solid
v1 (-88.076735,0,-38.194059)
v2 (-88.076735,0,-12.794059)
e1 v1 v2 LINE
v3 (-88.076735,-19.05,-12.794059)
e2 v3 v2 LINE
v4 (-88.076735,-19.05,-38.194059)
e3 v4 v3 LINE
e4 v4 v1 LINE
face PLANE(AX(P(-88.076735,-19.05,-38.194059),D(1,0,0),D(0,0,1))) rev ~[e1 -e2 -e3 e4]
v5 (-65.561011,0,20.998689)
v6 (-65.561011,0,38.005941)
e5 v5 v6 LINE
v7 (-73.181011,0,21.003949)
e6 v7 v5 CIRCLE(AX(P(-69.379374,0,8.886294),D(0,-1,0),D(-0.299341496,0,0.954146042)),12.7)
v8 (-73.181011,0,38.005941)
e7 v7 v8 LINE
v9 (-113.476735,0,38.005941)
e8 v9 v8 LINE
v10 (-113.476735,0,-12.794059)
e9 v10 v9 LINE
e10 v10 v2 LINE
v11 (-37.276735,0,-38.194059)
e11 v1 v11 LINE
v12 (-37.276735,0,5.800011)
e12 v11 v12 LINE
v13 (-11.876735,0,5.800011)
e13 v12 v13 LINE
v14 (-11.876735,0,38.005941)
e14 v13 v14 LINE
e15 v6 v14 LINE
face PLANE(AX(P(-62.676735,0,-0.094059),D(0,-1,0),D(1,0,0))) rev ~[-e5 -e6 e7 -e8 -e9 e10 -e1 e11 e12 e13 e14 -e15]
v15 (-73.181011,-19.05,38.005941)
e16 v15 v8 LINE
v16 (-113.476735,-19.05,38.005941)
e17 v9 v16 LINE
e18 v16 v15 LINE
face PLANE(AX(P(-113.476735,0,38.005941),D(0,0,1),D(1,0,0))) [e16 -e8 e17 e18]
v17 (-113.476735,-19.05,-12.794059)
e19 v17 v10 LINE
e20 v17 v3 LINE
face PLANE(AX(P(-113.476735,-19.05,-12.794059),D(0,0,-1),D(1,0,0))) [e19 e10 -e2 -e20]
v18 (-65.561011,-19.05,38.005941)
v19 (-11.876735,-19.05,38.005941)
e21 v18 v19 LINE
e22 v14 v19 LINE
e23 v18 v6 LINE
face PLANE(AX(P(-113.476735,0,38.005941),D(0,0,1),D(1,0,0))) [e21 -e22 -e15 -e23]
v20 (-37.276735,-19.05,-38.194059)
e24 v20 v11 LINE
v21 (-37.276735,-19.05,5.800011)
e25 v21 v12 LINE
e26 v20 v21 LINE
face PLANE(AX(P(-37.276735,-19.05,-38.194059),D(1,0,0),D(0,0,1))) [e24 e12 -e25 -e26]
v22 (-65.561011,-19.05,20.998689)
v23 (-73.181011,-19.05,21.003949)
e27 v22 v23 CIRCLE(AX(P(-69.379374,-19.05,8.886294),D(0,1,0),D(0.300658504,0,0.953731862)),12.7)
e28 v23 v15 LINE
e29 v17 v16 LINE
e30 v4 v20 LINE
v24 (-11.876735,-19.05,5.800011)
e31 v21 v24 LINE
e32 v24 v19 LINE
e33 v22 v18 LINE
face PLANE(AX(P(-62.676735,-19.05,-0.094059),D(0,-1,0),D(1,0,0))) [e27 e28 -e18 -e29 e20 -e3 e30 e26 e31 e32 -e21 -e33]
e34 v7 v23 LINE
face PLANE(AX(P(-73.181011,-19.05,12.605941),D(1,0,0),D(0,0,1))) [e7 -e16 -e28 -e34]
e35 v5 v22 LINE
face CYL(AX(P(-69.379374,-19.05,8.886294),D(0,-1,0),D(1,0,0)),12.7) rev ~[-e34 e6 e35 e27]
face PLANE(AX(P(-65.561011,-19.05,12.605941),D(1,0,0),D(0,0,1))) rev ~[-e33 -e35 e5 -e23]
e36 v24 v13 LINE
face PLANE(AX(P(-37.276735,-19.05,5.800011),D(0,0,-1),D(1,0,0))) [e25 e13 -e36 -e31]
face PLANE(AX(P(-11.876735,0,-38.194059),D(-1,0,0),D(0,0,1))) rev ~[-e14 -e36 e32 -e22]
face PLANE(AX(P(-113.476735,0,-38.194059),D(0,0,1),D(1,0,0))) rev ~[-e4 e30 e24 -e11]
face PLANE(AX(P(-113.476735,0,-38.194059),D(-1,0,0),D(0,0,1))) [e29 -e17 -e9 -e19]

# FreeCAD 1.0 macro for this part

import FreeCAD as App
import Part
import Sketcher

V = App.Vector
Q = App.Units.Quantity

doc = App.newDocument("Part")
params = doc.addObject("Spreadsheet::Sheet", "Params")
for row, (alias, value) in enumerate([
    ("sketch1_width", "4 in"),
    ("sketch1_height", "3 in"),
    ("pad1_length", "0.75 in"),
    ("sketch2_width", "1 in"),
    ("pocket1_length", "0.75 in"),
    ("sketch3_width", "1 in"),
    ("pocket2_length", "0.75 in"),
    ("sketch4_diameter", "1 in"),
    ("pocket3_length", "0.75 in"),
    ("sketch5_height", "1 in"),
    ("sketch5_width", "0.3 in"),
], start=1):
    params.set(f"A{row}", alias)
    params.set(f"B{row}", "=" + value)
    params.setAlias(f"B{row}", alias)

body = doc.addObject("PartDesign::Body", "Body")

# Sketch on XZ plane
sketch1 = body.newObject("Sketcher::SketchObject", "Sketch")
sketch1.AttachmentSupport = (doc.getObject("XZ_Plane"), [""])
sketch1.MapMode = "FlatFace"
sketch1.addGeometry(Part.LineSegment(V(-113.476735, 38.005941, 0), V(-113.476735, -38.194059, 0)), False)
sketch1.addGeometry(Part.LineSegment(V(-113.476735, -38.194059, 0), V(-11.876735, -38.194059, 0)), False)
sketch1.addGeometry(Part.LineSegment(V(-11.876735, -38.194059, 0), V(-11.876735, 38.005941, 0)), False)
sketch1.addGeometry(Part.LineSegment(V(-11.876735, 38.005941, 0), V(-113.476735, 38.005941, 0)), False)
sketch1.addConstraint(Sketcher.Constraint("Coincident", 0, 2, 1, 1))
sketch1.addConstraint(Sketcher.Constraint("Coincident", 1, 2, 2, 1))
sketch1.addConstraint(Sketcher.Constraint("Coincident", 2, 2, 3, 1))
sketch1.addConstraint(Sketcher.Constraint("Coincident", 3, 2, 0, 1))
sketch1.addConstraint(Sketcher.Constraint("Vertical", 0))
sketch1.addConstraint(Sketcher.Constraint("Horizontal", 1))
sketch1.addConstraint(Sketcher.Constraint("Vertical", 2))
sketch1.addConstraint(Sketcher.Constraint("Horizontal", 3))
sketch1.addConstraint(Sketcher.Constraint("DistanceX", 1, 1, 1, 2, Q("4 in")))
sketch1.addConstraint(Sketcher.Constraint("DistanceY", 0, 2, 0, 1, Q("3 in")))
sketch1.addConstraint(Sketcher.Constraint("DistanceY", 0, 2, -1, 1, Q("38.194059 mm")))
sketch1.addConstraint(Sketcher.Constraint("DistanceX", 0, 2, -1, 1, Q("113.476735 mm")))
sketch1.setExpression("Constraints[8]", "Params.sketch1_width")
sketch1.setExpression("Constraints[9]", "Params.sketch1_height")
pad1 = body.newObject("PartDesign::Pad", "Pad")
pad1.Profile = sketch1
pad1.setExpression("Length", "Params.pad1_length")

# Sketch on XZ plane
sketch2 = body.newObject("Sketcher::SketchObject", "Sketch001")
sketch2.AttachmentSupport = (doc.getObject("XZ_Plane"), [""])
sketch2.MapMode = "FlatFace"
sketch2.AttachmentOffset = App.Placement(V(0, 0, 0.75 * 25.4), App.Rotation())
sketch2.addGeometry(Part.LineSegment(V(-113.476735, -12.794059, 0), V(-113.476735, -38.194059, 0)), False)
sketch2.addGeometry(Part.LineSegment(V(-113.476735, -38.194059, 0), V(-88.076735, -38.194059, 0)), False)
sketch2.addGeometry(Part.LineSegment(V(-88.076735, -38.194059, 0), V(-88.076735, -12.794059, 0)), False)
sketch2.addGeometry(Part.LineSegment(V(-88.076735, -12.794059, 0), V(-113.476735, -12.794059, 0)), False)
sketch2.addConstraint(Sketcher.Constraint("Coincident", 0, 2, 1, 1))
sketch2.addConstraint(Sketcher.Constraint("Coincident", 1, 2, 2, 1))
sketch2.addConstraint(Sketcher.Constraint("Coincident", 2, 2, 3, 1))
sketch2.addConstraint(Sketcher.Constraint("Coincident", 3, 2, 0, 1))
sketch2.addConstraint(Sketcher.Constraint("Vertical", 0))
sketch2.addConstraint(Sketcher.Constraint("Horizontal", 1))
sketch2.addConstraint(Sketcher.Constraint("Vertical", 2))
sketch2.addConstraint(Sketcher.Constraint("Horizontal", 3))
sketch2.addConstraint(Sketcher.Constraint("Equal", 3, 0))
sketch2.addConstraint(Sketcher.Constraint("DistanceX", 1, 1, 1, 2, Q("1 in")))
sketch2.addConstraint(Sketcher.Constraint("DistanceY", 0, 2, -1, 1, Q("38.194059 mm")))
sketch2.addConstraint(Sketcher.Constraint("DistanceX", 0, 2, -1, 1, Q("113.476735 mm")))
sketch2.setExpression("Constraints[9]", "Params.sketch2_width")
pocket1 = body.newObject("PartDesign::Pocket", "Pocket")
pocket1.Profile = sketch2
pocket1.setExpression("Length", "Params.pocket1_length")

# Sketch on XZ plane
sketch3 = body.newObject("Sketcher::SketchObject", "Sketch002")
sketch3.AttachmentSupport = (doc.getObject("XZ_Plane"), [""])
sketch3.MapMode = "FlatFace"
sketch3.AttachmentOffset = App.Placement(V(0, 0, 0.75 * 25.4), App.Rotation())
sketch3.addGeometry(Part.LineSegment(V(-37.276735, 5.800011, 0), V(-37.276735, -38.194059, 0)), False)
sketch3.addGeometry(Part.LineSegment(V(-37.276735, -38.194059, 0), V(-11.876735, -38.194059, 0)), False)
sketch3.addGeometry(Part.LineSegment(V(-11.876735, -38.194059, 0), V(-11.876735, 5.800011, 0)), False)
sketch3.addGeometry(Part.LineSegment(V(-11.876735, 5.800011, 0), V(-37.276735, 5.800011, 0)), False)
sketch3.addConstraint(Sketcher.Constraint("Coincident", 0, 2, 1, 1))
sketch3.addConstraint(Sketcher.Constraint("Coincident", 1, 2, 2, 1))
sketch3.addConstraint(Sketcher.Constraint("Coincident", 2, 2, 3, 1))
sketch3.addConstraint(Sketcher.Constraint("Coincident", 3, 2, 0, 1))
sketch3.addConstraint(Sketcher.Constraint("Vertical", 0))
sketch3.addConstraint(Sketcher.Constraint("Horizontal", 1))
sketch3.addConstraint(Sketcher.Constraint("Vertical", 2))
sketch3.addConstraint(Sketcher.Constraint("Horizontal", 3))
sketch3.addConstraint(Sketcher.Constraint("DistanceX", 1, 1, 1, 2, Q("1 in")))
sketch3.addConstraint(Sketcher.Constraint("DistanceY", 0, 2, 0, 1, Q("43.99407 mm")))
sketch3.addConstraint(Sketcher.Constraint("DistanceY", 0, 2, -1, 1, Q("38.194059 mm")))
sketch3.addConstraint(Sketcher.Constraint("DistanceX", 0, 2, -1, 1, Q("37.276735 mm")))
sketch3.setExpression("Constraints[8]", "Params.sketch3_width")
pocket2 = body.newObject("PartDesign::Pocket", "Pocket001")
pocket2.Profile = sketch3
pocket2.setExpression("Length", "Params.pocket2_length")

# Sketch on XZ plane
sketch4 = body.newObject("Sketcher::SketchObject", "Sketch003")
sketch4.AttachmentSupport = (doc.getObject("XZ_Plane"), [""])
sketch4.MapMode = "FlatFace"
sketch4.AttachmentOffset = App.Placement(V(0, 0, 0.75 * 25.4), App.Rotation())
sketch4.addGeometry(Part.Circle(V(-69.379374, 8.886294, 0), V(0, 0, 1), 12.7), False)
sketch4.addConstraint(Sketcher.Constraint("Diameter", 0, Q("1 in")))
sketch4.addConstraint(Sketcher.Constraint("DistanceX", 0, 3, -1, 1, Q("69.379374 mm")))
sketch4.addConstraint(Sketcher.Constraint("DistanceY", -1, 1, 0, 3, Q("8.886294 mm")))
sketch4.setExpression("Constraints[0]", "Params.sketch4_diameter")
pocket3 = body.newObject("PartDesign::Pocket", "Pocket002")
pocket3.Profile = sketch4
pocket3.setExpression("Length", "Params.pocket3_length")

# Sketch on XZ plane
sketch5 = body.newObject("Sketcher::SketchObject", "Sketch004")
sketch5.AttachmentSupport = (doc.getObject("XZ_Plane"), [""])
sketch5.MapMode = "FlatFace"
sketch5.AttachmentOffset = App.Placement(V(0, 0, 0.75 * 25.4), App.Rotation())
sketch5.addGeometry(Part.LineSegment(V(-73.181011, 38.005941, 0), V(-73.181011, 12.605941, 0)), False)
sketch5.addGeometry(Part.LineSegment(V(-73.181011, 12.605941, 0), V(-65.561011, 12.605941, 0)), False)
sketch5.addGeometry(Part.LineSegment(V(-65.561011, 12.605941, 0), V(-65.561011, 38.005941, 0)), False)
sketch5.addGeometry(Part.LineSegment(V(-65.561011, 38.005941, 0), V(-73.181011, 38.005941, 0)), False)
sketch5.addConstraint(Sketcher.Constraint("Coincident", 0, 2, 1, 1))
sketch5.addConstraint(Sketcher.Constraint("Coincident", 1, 2, 2, 1))
sketch5.addConstraint(Sketcher.Constraint("Coincident", 2, 2, 3, 1))
sketch5.addConstraint(Sketcher.Constraint("Coincident", 3, 2, 0, 1))
sketch5.addConstraint(Sketcher.Constraint("Vertical", 0))
sketch5.addConstraint(Sketcher.Constraint("Horizontal", 1))
sketch5.addConstraint(Sketcher.Constraint("Vertical", 2))
sketch5.addConstraint(Sketcher.Constraint("Horizontal", 3))
sketch5.addConstraint(Sketcher.Constraint("DistanceY", 0, 2, 0, 1, Q("1 in")))
sketch5.addConstraint(Sketcher.Constraint("DistanceX", 1, 1, 1, 2, Q("0.3 in")))
sketch5.addConstraint(Sketcher.Constraint("DistanceX", 0, 2, -1, 1, Q("73.181011 mm")))
sketch5.addConstraint(Sketcher.Constraint("DistanceY", -1, 1, 0, 2, Q("12.605941 mm")))
sketch5.setExpression("Constraints[8]", "Params.sketch5_height")
sketch5.setExpression("Constraints[9]", "Params.sketch5_width")
pocket4 = body.newObject("PartDesign::Pocket", "Pocket003")
pocket4.Profile = sketch5
pocket4.Type = "ThroughAll"

doc.recompute()
